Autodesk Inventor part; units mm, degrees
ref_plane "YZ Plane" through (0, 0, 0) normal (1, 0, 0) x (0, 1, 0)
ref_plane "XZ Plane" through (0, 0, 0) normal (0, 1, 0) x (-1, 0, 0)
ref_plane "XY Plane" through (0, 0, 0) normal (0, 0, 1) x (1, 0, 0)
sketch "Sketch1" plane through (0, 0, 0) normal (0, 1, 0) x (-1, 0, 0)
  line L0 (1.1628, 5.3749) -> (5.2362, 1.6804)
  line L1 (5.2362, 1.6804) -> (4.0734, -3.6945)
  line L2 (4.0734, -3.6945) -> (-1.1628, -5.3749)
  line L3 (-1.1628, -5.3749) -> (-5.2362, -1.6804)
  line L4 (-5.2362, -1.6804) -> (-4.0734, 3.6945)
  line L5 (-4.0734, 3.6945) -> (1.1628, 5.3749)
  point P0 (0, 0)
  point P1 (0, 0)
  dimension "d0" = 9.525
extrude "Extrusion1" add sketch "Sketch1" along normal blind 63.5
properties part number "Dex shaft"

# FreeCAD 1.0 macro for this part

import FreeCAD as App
import Part
import Sketcher
Q = App.Units.Quantity

doc = App.newDocument("Part")
body = doc.addObject("PartDesign::Body", "Body")

# Sketch on XZ plane
sketch1 = body.newObject("Sketcher::SketchObject", "Sketch")
sketch1.AttachmentSupport = (doc.getObject("XZ_Plane"), [""])
sketch1.MapMode = "FlatFace"
sketch1.addGeometry(Part.LineSegment(App.Vector(-5, 2, 0), App.Vector(-1, 5, 0)), False)
sketch1.addGeometry(Part.LineSegment(App.Vector(-1, 5, 0), App.Vector(4, 4, 0)), False)
sketch1.addGeometry(Part.LineSegment(App.Vector(4, 4, 0), App.Vector(5, -2, 0)), False)
sketch1.addGeometry(Part.LineSegment(App.Vector(5, -2, 0), App.Vector(1, -5, 0)), False)
sketch1.addGeometry(Part.LineSegment(App.Vector(1, -5, 0), App.Vector(-4, -4, 0)), False)
sketch1.addGeometry(Part.LineSegment(App.Vector(-4, -4, 0), App.Vector(-5, 2, 0)), False)
sketch1.addConstraint(Sketcher.Constraint("Coincident", 0, 2, 1, 1))
sketch1.addConstraint(Sketcher.Constraint("Coincident", 1, 2, 2, 1))
sketch1.addConstraint(Sketcher.Constraint("Coincident", 2, 2, 3, 1))
sketch1.addConstraint(Sketcher.Constraint("Coincident", 3, 2, 4, 1))
sketch1.addConstraint(Sketcher.Constraint("Coincident", 4, 2, 5, 1))
sketch1.addConstraint(Sketcher.Constraint("Coincident", 5, 2, 0, 1))
sketch1.addConstraint(Sketcher.Constraint("Symmetric", 0, 2, 3, 2, -1, 1))
sketch1.addConstraint(Sketcher.Constraint("Symmetric", 1, 2, 4, 2, -1, 1))
sketch1.addConstraint(Sketcher.Constraint("Symmetric", 2, 2, 5, 2, -1, 1))
sketch1.addConstraint(Sketcher.Constraint("Equal", 0, 1))
sketch1.addConstraint(Sketcher.Constraint("Equal", 1, 2))
sketch1.addConstraint(Sketcher.Constraint("Distance", 0, Q("0.2165 in")))
sketch1.addConstraint(Sketcher.Constraint("DistanceY", -1, 1, 0, 2, Q("0.2116 in")))
sketch1.addConstraint(Sketcher.Constraint("DistanceY", 2, 2, 1, 2, Q("0.2116 in")))
sketch1.addConstraint(Sketcher.Constraint("DistanceX", 3, 2, 1, 2, Q("0.1146 in")))
pad1 = body.newObject("PartDesign::Pad", "Pad")
pad1.Profile = sketch1
pad1.Length = Q("2.5 in")
pad1.Reversed = True

doc.recompute()
